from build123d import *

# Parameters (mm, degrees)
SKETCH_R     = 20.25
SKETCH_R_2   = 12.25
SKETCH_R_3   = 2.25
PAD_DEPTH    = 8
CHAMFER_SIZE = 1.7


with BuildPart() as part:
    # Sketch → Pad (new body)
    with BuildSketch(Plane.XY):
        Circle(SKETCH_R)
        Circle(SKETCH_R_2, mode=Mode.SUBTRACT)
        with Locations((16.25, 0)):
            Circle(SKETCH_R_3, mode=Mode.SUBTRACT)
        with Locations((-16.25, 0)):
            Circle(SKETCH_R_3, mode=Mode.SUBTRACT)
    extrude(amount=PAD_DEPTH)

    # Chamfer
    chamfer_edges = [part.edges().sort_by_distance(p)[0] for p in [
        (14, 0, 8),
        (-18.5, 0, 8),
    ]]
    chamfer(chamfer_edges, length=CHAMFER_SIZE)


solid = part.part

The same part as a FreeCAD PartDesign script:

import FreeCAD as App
import Part
import Sketcher
Q = App.Units.Quantity


def edges_at(feature, points):
    """Names of the edges that pass closest to the given points."""
    edges = feature.Shape.Edges
    near = lambda p: min(range(len(edges)), key=lambda i: edges[i].distToShape(Part.Vertex(*p))[0])
    return sorted({f"Edge{near(p) + 1}" for p in points})

doc = App.newDocument("Part")
params = doc.addObject("Spreadsheet::Sheet", "Params")
for row, (alias, value) in enumerate([
    ("sketch1_diameter", "40.5 mm"),
    ("sketch1_diameter2", "4.5 mm"),
    ("sketch1_diameter3", "24.5 mm"),
    ("pad1_length", "8 mm"),
    ("chamfer_size", "1.7 mm"),
], start=1):
    params.set(f"A{row}", alias)
    params.set(f"B{row}", "=" + value)
    params.setAlias(f"B{row}", alias)

body = doc.addObject("PartDesign::Body", "Body")

sketch1 = body.newObject("Sketcher::SketchObject", "Sketch")
sketch1.AttachmentSupport = (doc.getObject("XY_Plane"), [""])
sketch1.MapMode = "FlatFace"
sketch1.addGeometry(Part.Circle(App.Vector(0, 0, 0), App.Vector(0, 0, 1), 20.2), False)
sketch1.addGeometry(Part.Circle(App.Vector(-16.2, 0, 0), App.Vector(0, 0, 1), 2.2), False)
sketch1.addGeometry(Part.Circle(App.Vector(0, 0, 0), App.Vector(0, 0, 1), 12.2), False)
sketch1.addGeometry(Part.Circle(App.Vector(16.2, 0, 0), App.Vector(0, 0, 1), 2.2), False)
sketch1.addConstraint(Sketcher.Constraint("Coincident", 0, 3, -1, 1))
sketch1.addConstraint(Sketcher.Constraint("Coincident", 2, 3, -1, 1))
sketch1.addConstraint(Sketcher.Constraint("Equal", 1, 3))
sketch1.addConstraint(Sketcher.Constraint("Symmetric", 1, 3, 3, 3, -1, 1))
sketch1.addConstraint(Sketcher.Constraint("PointOnObject", 1, 3, -1))
sketch1.addConstraint(Sketcher.Constraint("Diameter", 0, Q("40.5 mm")))
sketch1.addConstraint(Sketcher.Constraint("Diameter", 1, Q("4.5 mm")))
sketch1.addConstraint(Sketcher.Constraint("Diameter", 2, Q("24.5 mm")))
sketch1.addConstraint(Sketcher.Constraint("DistanceX", 1, 3, 3, 3, Q("32.5 mm")))
sketch1.setExpression("Constraints[5]", "Params.sketch1_diameter")
sketch1.setExpression("Constraints[6]", "Params.sketch1_diameter2")
sketch1.setExpression("Constraints[7]", "Params.sketch1_diameter3")
pad1 = body.newObject("PartDesign::Pad", "Pad")
pad1.Profile = sketch1
pad1.setExpression("Length", "Params.pad1_length")
doc.recompute()

chamfer = body.newObject("PartDesign::Chamfer", "Chamfer")
chamfer.Base = (pad1, edges_at(pad1, [(14, 0, 8), (-18.5, 0, 8)]))
chamfer.setExpression("Size", "Params.chamfer_size")

doc.recompute()
